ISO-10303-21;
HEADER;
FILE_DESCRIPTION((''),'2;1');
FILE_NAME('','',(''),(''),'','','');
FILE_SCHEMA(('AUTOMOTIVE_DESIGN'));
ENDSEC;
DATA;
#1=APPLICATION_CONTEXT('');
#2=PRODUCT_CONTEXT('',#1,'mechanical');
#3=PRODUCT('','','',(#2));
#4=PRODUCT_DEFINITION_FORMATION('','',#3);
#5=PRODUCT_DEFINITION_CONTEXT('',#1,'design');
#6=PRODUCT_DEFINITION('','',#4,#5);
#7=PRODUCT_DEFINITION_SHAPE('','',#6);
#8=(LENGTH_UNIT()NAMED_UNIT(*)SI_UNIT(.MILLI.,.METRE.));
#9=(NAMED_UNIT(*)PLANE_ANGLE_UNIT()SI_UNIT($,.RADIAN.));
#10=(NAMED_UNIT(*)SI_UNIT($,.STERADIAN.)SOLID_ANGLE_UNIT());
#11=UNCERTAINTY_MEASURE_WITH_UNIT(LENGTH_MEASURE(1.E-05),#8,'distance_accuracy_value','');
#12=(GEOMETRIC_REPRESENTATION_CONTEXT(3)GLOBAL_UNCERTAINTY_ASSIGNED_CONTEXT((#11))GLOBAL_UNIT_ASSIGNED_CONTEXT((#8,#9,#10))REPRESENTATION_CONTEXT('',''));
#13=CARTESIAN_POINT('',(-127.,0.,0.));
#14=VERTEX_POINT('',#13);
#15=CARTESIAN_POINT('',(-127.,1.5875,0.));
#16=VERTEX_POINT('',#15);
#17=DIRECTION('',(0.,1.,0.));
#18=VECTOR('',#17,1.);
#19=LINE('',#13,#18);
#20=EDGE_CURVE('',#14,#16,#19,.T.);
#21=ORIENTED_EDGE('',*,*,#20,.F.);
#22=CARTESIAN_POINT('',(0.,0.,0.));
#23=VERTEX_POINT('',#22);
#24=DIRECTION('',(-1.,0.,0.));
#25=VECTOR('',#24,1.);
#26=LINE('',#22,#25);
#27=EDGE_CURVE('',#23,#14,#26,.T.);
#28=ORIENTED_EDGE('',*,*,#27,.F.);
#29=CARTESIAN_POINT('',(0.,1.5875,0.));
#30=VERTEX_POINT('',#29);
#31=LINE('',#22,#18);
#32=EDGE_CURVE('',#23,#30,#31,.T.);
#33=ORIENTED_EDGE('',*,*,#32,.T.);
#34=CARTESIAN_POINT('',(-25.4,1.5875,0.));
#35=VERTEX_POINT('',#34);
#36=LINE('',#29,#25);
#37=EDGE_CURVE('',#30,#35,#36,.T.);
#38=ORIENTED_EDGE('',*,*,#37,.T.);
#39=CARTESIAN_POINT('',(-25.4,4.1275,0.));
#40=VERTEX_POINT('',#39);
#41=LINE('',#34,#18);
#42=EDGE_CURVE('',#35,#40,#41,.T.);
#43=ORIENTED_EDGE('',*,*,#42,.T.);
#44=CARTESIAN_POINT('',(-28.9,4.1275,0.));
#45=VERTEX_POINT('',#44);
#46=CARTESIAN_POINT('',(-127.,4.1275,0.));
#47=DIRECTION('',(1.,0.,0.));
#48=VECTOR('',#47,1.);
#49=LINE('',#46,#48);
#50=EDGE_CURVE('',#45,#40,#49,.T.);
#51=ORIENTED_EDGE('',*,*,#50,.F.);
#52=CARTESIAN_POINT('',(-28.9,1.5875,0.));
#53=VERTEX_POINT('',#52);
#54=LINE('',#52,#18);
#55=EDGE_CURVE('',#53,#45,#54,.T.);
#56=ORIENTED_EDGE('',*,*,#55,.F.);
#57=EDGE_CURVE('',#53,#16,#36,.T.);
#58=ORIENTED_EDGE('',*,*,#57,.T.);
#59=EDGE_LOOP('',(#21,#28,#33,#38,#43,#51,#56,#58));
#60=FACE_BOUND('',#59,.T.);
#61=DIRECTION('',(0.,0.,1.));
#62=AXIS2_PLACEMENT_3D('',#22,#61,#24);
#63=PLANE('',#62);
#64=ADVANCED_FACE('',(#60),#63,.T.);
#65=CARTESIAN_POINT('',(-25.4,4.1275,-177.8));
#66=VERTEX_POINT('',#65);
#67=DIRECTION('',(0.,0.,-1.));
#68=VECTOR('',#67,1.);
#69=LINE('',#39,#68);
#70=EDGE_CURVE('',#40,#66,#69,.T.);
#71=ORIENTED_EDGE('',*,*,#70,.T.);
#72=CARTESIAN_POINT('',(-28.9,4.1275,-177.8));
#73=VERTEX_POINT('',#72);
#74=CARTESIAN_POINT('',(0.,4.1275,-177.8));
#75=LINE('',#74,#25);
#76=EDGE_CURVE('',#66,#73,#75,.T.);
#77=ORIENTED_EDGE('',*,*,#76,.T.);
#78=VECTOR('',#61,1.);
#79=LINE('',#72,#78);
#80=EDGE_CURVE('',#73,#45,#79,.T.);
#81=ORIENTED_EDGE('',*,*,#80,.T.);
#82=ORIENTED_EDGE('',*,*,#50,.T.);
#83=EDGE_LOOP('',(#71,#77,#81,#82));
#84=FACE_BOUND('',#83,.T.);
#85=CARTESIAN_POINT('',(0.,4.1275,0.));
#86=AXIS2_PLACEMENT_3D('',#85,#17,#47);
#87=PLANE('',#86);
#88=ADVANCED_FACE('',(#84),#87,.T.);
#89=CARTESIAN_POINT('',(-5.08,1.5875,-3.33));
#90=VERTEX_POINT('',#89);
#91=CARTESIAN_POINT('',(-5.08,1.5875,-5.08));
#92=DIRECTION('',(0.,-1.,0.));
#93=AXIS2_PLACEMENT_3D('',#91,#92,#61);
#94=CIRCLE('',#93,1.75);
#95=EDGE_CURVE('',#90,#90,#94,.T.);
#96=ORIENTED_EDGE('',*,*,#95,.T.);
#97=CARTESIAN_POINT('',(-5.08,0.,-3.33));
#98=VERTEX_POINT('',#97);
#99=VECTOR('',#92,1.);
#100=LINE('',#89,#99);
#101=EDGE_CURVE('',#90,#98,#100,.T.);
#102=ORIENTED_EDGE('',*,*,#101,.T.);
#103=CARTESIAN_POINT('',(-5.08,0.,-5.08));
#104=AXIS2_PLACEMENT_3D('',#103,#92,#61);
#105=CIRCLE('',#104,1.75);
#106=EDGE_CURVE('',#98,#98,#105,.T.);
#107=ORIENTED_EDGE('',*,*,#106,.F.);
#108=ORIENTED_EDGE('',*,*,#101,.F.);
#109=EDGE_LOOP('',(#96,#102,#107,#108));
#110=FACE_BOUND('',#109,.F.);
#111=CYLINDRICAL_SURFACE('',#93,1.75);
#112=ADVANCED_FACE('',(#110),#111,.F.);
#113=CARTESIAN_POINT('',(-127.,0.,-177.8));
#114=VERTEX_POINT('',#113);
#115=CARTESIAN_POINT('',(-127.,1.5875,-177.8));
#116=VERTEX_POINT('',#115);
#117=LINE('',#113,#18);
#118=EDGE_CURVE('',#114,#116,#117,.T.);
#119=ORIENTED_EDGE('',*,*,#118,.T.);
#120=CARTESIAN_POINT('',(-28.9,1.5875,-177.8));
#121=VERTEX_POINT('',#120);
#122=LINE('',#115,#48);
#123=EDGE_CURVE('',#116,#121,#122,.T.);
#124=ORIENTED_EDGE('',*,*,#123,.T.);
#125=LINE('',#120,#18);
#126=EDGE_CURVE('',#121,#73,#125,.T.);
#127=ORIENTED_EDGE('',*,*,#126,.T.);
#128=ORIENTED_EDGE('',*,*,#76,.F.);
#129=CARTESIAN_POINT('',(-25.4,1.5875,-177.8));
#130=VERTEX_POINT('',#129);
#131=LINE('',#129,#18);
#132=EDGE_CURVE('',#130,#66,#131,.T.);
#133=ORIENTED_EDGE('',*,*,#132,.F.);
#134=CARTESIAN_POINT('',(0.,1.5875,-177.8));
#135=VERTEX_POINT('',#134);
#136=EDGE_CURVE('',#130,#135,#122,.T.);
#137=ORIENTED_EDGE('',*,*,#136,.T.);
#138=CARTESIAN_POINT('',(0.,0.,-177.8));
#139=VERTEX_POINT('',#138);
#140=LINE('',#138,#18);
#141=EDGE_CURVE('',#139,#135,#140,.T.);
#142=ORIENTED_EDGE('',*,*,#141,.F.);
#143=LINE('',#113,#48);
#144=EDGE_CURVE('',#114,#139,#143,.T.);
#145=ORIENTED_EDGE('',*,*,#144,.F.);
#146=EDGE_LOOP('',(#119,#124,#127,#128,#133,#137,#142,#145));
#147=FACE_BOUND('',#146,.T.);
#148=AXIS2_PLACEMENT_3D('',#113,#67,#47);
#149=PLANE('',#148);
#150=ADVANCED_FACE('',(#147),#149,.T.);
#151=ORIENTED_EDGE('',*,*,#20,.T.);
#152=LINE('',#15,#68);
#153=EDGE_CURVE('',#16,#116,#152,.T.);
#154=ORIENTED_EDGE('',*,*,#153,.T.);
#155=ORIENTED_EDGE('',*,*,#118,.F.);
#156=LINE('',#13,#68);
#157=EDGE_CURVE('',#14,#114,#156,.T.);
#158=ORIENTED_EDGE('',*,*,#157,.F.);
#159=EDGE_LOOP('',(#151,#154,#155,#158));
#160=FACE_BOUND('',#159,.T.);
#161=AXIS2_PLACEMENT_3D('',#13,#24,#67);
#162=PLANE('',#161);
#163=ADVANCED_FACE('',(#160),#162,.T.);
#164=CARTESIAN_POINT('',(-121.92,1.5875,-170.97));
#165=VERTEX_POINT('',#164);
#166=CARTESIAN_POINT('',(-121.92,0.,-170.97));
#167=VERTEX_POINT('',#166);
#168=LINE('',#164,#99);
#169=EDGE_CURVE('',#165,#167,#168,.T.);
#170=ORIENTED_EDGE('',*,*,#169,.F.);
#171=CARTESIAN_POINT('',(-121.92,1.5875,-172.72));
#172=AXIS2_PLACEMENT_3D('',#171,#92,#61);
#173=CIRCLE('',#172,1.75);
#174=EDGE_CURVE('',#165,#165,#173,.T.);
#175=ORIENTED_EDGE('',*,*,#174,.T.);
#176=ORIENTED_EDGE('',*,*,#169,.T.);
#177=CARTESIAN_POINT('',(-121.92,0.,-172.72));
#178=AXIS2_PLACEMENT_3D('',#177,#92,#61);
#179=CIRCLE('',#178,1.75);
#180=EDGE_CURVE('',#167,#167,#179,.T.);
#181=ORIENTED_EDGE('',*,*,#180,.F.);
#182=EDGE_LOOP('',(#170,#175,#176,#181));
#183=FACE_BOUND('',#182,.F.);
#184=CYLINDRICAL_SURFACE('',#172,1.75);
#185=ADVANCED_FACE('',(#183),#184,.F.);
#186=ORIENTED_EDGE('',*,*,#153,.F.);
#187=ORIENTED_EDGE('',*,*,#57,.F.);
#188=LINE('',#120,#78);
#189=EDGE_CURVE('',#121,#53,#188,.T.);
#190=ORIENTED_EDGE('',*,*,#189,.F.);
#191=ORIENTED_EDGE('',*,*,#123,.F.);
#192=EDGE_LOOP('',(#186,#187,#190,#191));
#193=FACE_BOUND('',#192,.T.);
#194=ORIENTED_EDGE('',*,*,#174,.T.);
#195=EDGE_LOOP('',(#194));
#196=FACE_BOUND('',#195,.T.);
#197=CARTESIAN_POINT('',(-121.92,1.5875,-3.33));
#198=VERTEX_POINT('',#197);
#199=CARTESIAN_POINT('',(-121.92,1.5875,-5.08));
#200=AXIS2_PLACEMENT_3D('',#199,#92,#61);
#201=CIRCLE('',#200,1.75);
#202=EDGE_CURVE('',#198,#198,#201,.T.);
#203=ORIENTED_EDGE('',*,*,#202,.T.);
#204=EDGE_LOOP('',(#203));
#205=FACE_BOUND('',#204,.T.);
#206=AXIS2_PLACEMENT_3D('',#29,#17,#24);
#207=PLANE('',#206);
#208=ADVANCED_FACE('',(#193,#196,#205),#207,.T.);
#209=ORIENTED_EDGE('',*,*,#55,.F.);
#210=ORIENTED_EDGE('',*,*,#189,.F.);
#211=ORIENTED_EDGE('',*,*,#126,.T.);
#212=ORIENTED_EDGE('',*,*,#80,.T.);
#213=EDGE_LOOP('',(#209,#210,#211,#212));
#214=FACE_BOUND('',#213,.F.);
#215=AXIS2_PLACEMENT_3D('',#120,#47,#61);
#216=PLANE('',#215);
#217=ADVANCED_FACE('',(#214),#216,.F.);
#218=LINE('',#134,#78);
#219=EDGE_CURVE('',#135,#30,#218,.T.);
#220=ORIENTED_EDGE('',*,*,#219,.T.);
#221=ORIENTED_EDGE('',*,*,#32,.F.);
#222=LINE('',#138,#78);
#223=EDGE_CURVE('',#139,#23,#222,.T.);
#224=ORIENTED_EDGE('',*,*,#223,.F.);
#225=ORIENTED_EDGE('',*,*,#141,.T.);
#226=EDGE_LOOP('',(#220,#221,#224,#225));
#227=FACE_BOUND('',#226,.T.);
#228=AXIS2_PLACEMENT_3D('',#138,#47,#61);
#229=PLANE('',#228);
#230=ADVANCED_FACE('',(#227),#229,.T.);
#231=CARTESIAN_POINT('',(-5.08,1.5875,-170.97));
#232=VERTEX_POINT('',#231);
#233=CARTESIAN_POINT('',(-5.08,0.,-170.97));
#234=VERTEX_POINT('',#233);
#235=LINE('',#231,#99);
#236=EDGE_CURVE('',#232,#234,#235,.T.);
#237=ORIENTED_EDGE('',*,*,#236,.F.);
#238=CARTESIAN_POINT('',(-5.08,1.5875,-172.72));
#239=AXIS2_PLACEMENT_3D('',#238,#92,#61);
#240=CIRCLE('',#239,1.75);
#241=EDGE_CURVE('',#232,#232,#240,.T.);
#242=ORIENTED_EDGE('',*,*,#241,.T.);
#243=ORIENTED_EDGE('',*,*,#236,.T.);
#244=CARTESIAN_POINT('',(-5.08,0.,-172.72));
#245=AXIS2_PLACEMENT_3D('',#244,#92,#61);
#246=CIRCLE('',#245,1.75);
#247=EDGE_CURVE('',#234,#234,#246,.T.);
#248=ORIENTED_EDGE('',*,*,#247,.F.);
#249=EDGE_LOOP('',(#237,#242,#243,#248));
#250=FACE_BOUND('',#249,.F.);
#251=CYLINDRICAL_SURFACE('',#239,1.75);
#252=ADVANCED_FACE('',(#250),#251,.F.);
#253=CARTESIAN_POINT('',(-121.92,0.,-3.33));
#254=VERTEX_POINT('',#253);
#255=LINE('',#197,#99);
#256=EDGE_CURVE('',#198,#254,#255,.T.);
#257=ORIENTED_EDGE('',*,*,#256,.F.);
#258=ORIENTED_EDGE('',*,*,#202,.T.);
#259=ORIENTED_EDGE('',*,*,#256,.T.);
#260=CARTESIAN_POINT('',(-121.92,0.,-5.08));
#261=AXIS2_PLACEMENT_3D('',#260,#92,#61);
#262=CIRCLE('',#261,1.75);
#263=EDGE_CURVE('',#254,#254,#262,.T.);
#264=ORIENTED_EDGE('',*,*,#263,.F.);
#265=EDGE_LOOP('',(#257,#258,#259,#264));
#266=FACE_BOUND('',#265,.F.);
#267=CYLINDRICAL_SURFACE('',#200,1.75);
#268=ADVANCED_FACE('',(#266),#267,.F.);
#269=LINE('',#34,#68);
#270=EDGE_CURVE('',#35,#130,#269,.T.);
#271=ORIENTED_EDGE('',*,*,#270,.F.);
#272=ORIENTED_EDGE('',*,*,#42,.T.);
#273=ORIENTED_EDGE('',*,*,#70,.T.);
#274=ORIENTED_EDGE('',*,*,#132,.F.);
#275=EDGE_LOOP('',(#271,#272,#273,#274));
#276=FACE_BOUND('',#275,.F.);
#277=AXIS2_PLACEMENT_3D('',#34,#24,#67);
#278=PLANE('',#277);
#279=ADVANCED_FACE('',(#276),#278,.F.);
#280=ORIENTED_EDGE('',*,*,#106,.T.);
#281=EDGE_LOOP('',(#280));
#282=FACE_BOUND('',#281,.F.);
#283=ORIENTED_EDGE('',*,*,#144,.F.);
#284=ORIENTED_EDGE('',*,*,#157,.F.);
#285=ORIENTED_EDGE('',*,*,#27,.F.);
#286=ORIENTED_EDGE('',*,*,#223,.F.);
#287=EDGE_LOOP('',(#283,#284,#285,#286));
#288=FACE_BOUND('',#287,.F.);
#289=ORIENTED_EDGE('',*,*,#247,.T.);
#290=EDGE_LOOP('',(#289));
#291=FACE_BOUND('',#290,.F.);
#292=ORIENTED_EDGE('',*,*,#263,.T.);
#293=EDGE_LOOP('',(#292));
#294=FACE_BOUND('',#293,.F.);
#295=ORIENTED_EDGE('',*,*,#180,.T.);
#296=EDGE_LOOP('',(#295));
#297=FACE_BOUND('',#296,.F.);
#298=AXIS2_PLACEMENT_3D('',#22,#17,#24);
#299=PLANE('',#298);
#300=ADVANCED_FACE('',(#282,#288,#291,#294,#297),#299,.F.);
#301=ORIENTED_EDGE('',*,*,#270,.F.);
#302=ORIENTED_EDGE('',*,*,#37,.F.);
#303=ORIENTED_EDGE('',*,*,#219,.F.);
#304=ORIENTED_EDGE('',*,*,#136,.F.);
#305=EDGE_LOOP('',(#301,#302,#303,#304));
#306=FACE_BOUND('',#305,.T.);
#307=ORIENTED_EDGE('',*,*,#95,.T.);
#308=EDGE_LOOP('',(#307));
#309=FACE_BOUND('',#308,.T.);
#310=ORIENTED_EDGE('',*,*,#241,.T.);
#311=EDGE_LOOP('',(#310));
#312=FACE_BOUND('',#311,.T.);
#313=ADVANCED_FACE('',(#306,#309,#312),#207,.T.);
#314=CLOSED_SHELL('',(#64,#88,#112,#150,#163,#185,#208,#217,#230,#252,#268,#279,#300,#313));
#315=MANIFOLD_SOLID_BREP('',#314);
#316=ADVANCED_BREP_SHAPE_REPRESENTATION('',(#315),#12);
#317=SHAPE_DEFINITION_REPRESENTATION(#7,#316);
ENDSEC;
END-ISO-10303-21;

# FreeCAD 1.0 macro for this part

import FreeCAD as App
import Part
import Sketcher
from FreeCAD import Vector
Q = App.Units.Quantity


def add_polygon(sketch, points):
    """Adds a closed chain of lines whose ends are joined by coincident constraints."""
    first, n = sketch.GeometryCount, len(points)
    for a, b in zip(points, points[1:] + points[:1]):
        sketch.addGeometry(Part.LineSegment(App.Vector(*a, 0), App.Vector(*b, 0)), False)
    for i in range(n):
        sketch.addConstraint(Sketcher.Constraint("Coincident", first + i, 2, first + (i + 1) % n, 1))

doc = App.newDocument("Part")
params = doc.addObject("Spreadsheet::Sheet", "Params")
for row, (alias, value) in enumerate([
    ("sketch1_width", "5 in"),
    ("sketch1_height", "7 in"),
    ("pad1_length", "0.0625 in"),
    ("hole_diameter", "0.1377953 in"),
    ("sketch3_height", "7 in"),
    ("pad2_length", "0.1 in"),
], start=1):
    params.set(f"A{row}", alias)
    params.set(f"B{row}", "=" + value)
    params.setAlias(f"B{row}", alias)

body = doc.addObject("PartDesign::Body", "Body")

sketch1 = body.newObject("Sketcher::SketchObject", "Sketch")
sketch1.AttachmentSupport = (doc.getObject("XZ_Plane"), [""])
sketch1.MapMode = "FlatFace"
add_polygon(sketch1, [(-127, 0), (0, 0), (0, -178), (-127, -178)])
sketch1.addConstraint([
    Sketcher.Constraint("Horizontal", 0),
    Sketcher.Constraint("Vertical", 1),
    Sketcher.Constraint("Horizontal", 2),
    Sketcher.Constraint("Vertical", 3),
    Sketcher.Constraint("Coincident", 0, 2, -1, 1),
    Sketcher.Constraint("DistanceX", 0, 1, 0, 2, Q("5 in")),
    Sketcher.Constraint("DistanceY", 1, 2, 1, 1, Q("7 in")),
])
sketch1.setExpression("Constraints[9]", "Params.sketch1_width")
sketch1.setExpression("Constraints[10]", "Params.sketch1_height")
pad1 = body.newObject("PartDesign::Pad", "Pad")
pad1.Profile = sketch1
pad1.setExpression("Length", "Params.pad1_length")
pad1.Reversed = True

sketch2 = body.newObject("Sketcher::SketchObject", "Sketch001")
sketch2.AttachmentSupport = (doc.getObject("XZ_Plane"), [""])
sketch2.MapMode = "FlatFace"
sketch2.AttachmentOffset = App.Placement(Vector(0, 0, -0.0625 * 25.4), App.Rotation())
sketch2.addGeometry([
    Part.Circle(Vector(-121.9, -172.7, 0), Vector(0, 0, 1), 1.8),
    Part.Circle(Vector(-5.1, -172.7, 0), Vector(0, 0, 1), 1.8),
    Part.Circle(Vector(-5.1, -5.1, 0), Vector(0, 0, 1), 1.8),
    Part.Circle(Vector(-121.9, -5.1, 0), Vector(0, 0, 1), 1.8),
], False)
sketch2.addConstraint([
    Sketcher.Constraint("Equal", 0, 1),
    Sketcher.Constraint("Equal", 1, 2),
    Sketcher.Constraint("Equal", 2, 3),
    Sketcher.Constraint("Horizontal", 0, 3, 1, 3),
    Sketcher.Constraint("Horizontal", 2, 3, 3, 3),
    Sketcher.Constraint("Vertical", 1, 3, 2, 3),
    Sketcher.Constraint("Vertical", 0, 3, 3, 3),
    Sketcher.Constraint("Diameter", 0, Q("0.1378 in")),
    Sketcher.Constraint("DistanceX", 0, 3, -1, 1, Q("4.8 in")),
    Sketcher.Constraint("DistanceY", 0, 3, -1, 1, Q("6.8 in")),
    Sketcher.Constraint("DistanceX", 1, 3, -1, 1, Q("0.2 in")),
    Sketcher.Constraint("DistanceY", 2, 3, -1, 1, Q("0.2 in")),
])
doc.recompute()
hole = body.newObject("PartDesign::Hole", "Hole")
hole.Profile = sketch2
hole.ThreadType = "None"
hole.setExpression("Diameter", "Params.hole_diameter")
hole.DepthType = "ThroughAll"
hole.Reversed = True

sketch3 = body.newObject("Sketcher::SketchObject", "Sketch002")
sketch3.AttachmentSupport = (doc.getObject("XZ_Plane"), [""])
sketch3.MapMode = "FlatFace"
sketch3.AttachmentOffset = App.Placement(Vector(0, 0, -0.0625 * 25.4), App.Rotation())
add_polygon(sketch3, [(-28.9, -177.8), (-28.9, 0), (-25.4, 0), (-25.4, -177.8)])
sketch3.addConstraint([
    Sketcher.Constraint("Vertical", 0),
    Sketcher.Constraint("Horizontal", 1),
    Sketcher.Constraint("Vertical", 2),
    Sketcher.Constraint("Horizontal", 3),
    Sketcher.Constraint("PointOnObject", 0, 2, -1),
    Sketcher.Constraint("DistanceX", 1, 2, -1, 1, Q("1 in")),
    Sketcher.Constraint("DistanceY", 0, 1, 0, 2, Q("7 in")),
    Sketcher.Constraint("DistanceX", 1, 1, 1, 2, Q("0.1378 in")),
])
sketch3.setExpression("Constraints[10]", "Params.sketch3_height")
pad2 = body.newObject("PartDesign::Pad", "Pad001")
pad2.Profile = sketch3
pad2.setExpression("Length", "Params.pad2_length")
pad2.Reversed = True

doc.recompute()
